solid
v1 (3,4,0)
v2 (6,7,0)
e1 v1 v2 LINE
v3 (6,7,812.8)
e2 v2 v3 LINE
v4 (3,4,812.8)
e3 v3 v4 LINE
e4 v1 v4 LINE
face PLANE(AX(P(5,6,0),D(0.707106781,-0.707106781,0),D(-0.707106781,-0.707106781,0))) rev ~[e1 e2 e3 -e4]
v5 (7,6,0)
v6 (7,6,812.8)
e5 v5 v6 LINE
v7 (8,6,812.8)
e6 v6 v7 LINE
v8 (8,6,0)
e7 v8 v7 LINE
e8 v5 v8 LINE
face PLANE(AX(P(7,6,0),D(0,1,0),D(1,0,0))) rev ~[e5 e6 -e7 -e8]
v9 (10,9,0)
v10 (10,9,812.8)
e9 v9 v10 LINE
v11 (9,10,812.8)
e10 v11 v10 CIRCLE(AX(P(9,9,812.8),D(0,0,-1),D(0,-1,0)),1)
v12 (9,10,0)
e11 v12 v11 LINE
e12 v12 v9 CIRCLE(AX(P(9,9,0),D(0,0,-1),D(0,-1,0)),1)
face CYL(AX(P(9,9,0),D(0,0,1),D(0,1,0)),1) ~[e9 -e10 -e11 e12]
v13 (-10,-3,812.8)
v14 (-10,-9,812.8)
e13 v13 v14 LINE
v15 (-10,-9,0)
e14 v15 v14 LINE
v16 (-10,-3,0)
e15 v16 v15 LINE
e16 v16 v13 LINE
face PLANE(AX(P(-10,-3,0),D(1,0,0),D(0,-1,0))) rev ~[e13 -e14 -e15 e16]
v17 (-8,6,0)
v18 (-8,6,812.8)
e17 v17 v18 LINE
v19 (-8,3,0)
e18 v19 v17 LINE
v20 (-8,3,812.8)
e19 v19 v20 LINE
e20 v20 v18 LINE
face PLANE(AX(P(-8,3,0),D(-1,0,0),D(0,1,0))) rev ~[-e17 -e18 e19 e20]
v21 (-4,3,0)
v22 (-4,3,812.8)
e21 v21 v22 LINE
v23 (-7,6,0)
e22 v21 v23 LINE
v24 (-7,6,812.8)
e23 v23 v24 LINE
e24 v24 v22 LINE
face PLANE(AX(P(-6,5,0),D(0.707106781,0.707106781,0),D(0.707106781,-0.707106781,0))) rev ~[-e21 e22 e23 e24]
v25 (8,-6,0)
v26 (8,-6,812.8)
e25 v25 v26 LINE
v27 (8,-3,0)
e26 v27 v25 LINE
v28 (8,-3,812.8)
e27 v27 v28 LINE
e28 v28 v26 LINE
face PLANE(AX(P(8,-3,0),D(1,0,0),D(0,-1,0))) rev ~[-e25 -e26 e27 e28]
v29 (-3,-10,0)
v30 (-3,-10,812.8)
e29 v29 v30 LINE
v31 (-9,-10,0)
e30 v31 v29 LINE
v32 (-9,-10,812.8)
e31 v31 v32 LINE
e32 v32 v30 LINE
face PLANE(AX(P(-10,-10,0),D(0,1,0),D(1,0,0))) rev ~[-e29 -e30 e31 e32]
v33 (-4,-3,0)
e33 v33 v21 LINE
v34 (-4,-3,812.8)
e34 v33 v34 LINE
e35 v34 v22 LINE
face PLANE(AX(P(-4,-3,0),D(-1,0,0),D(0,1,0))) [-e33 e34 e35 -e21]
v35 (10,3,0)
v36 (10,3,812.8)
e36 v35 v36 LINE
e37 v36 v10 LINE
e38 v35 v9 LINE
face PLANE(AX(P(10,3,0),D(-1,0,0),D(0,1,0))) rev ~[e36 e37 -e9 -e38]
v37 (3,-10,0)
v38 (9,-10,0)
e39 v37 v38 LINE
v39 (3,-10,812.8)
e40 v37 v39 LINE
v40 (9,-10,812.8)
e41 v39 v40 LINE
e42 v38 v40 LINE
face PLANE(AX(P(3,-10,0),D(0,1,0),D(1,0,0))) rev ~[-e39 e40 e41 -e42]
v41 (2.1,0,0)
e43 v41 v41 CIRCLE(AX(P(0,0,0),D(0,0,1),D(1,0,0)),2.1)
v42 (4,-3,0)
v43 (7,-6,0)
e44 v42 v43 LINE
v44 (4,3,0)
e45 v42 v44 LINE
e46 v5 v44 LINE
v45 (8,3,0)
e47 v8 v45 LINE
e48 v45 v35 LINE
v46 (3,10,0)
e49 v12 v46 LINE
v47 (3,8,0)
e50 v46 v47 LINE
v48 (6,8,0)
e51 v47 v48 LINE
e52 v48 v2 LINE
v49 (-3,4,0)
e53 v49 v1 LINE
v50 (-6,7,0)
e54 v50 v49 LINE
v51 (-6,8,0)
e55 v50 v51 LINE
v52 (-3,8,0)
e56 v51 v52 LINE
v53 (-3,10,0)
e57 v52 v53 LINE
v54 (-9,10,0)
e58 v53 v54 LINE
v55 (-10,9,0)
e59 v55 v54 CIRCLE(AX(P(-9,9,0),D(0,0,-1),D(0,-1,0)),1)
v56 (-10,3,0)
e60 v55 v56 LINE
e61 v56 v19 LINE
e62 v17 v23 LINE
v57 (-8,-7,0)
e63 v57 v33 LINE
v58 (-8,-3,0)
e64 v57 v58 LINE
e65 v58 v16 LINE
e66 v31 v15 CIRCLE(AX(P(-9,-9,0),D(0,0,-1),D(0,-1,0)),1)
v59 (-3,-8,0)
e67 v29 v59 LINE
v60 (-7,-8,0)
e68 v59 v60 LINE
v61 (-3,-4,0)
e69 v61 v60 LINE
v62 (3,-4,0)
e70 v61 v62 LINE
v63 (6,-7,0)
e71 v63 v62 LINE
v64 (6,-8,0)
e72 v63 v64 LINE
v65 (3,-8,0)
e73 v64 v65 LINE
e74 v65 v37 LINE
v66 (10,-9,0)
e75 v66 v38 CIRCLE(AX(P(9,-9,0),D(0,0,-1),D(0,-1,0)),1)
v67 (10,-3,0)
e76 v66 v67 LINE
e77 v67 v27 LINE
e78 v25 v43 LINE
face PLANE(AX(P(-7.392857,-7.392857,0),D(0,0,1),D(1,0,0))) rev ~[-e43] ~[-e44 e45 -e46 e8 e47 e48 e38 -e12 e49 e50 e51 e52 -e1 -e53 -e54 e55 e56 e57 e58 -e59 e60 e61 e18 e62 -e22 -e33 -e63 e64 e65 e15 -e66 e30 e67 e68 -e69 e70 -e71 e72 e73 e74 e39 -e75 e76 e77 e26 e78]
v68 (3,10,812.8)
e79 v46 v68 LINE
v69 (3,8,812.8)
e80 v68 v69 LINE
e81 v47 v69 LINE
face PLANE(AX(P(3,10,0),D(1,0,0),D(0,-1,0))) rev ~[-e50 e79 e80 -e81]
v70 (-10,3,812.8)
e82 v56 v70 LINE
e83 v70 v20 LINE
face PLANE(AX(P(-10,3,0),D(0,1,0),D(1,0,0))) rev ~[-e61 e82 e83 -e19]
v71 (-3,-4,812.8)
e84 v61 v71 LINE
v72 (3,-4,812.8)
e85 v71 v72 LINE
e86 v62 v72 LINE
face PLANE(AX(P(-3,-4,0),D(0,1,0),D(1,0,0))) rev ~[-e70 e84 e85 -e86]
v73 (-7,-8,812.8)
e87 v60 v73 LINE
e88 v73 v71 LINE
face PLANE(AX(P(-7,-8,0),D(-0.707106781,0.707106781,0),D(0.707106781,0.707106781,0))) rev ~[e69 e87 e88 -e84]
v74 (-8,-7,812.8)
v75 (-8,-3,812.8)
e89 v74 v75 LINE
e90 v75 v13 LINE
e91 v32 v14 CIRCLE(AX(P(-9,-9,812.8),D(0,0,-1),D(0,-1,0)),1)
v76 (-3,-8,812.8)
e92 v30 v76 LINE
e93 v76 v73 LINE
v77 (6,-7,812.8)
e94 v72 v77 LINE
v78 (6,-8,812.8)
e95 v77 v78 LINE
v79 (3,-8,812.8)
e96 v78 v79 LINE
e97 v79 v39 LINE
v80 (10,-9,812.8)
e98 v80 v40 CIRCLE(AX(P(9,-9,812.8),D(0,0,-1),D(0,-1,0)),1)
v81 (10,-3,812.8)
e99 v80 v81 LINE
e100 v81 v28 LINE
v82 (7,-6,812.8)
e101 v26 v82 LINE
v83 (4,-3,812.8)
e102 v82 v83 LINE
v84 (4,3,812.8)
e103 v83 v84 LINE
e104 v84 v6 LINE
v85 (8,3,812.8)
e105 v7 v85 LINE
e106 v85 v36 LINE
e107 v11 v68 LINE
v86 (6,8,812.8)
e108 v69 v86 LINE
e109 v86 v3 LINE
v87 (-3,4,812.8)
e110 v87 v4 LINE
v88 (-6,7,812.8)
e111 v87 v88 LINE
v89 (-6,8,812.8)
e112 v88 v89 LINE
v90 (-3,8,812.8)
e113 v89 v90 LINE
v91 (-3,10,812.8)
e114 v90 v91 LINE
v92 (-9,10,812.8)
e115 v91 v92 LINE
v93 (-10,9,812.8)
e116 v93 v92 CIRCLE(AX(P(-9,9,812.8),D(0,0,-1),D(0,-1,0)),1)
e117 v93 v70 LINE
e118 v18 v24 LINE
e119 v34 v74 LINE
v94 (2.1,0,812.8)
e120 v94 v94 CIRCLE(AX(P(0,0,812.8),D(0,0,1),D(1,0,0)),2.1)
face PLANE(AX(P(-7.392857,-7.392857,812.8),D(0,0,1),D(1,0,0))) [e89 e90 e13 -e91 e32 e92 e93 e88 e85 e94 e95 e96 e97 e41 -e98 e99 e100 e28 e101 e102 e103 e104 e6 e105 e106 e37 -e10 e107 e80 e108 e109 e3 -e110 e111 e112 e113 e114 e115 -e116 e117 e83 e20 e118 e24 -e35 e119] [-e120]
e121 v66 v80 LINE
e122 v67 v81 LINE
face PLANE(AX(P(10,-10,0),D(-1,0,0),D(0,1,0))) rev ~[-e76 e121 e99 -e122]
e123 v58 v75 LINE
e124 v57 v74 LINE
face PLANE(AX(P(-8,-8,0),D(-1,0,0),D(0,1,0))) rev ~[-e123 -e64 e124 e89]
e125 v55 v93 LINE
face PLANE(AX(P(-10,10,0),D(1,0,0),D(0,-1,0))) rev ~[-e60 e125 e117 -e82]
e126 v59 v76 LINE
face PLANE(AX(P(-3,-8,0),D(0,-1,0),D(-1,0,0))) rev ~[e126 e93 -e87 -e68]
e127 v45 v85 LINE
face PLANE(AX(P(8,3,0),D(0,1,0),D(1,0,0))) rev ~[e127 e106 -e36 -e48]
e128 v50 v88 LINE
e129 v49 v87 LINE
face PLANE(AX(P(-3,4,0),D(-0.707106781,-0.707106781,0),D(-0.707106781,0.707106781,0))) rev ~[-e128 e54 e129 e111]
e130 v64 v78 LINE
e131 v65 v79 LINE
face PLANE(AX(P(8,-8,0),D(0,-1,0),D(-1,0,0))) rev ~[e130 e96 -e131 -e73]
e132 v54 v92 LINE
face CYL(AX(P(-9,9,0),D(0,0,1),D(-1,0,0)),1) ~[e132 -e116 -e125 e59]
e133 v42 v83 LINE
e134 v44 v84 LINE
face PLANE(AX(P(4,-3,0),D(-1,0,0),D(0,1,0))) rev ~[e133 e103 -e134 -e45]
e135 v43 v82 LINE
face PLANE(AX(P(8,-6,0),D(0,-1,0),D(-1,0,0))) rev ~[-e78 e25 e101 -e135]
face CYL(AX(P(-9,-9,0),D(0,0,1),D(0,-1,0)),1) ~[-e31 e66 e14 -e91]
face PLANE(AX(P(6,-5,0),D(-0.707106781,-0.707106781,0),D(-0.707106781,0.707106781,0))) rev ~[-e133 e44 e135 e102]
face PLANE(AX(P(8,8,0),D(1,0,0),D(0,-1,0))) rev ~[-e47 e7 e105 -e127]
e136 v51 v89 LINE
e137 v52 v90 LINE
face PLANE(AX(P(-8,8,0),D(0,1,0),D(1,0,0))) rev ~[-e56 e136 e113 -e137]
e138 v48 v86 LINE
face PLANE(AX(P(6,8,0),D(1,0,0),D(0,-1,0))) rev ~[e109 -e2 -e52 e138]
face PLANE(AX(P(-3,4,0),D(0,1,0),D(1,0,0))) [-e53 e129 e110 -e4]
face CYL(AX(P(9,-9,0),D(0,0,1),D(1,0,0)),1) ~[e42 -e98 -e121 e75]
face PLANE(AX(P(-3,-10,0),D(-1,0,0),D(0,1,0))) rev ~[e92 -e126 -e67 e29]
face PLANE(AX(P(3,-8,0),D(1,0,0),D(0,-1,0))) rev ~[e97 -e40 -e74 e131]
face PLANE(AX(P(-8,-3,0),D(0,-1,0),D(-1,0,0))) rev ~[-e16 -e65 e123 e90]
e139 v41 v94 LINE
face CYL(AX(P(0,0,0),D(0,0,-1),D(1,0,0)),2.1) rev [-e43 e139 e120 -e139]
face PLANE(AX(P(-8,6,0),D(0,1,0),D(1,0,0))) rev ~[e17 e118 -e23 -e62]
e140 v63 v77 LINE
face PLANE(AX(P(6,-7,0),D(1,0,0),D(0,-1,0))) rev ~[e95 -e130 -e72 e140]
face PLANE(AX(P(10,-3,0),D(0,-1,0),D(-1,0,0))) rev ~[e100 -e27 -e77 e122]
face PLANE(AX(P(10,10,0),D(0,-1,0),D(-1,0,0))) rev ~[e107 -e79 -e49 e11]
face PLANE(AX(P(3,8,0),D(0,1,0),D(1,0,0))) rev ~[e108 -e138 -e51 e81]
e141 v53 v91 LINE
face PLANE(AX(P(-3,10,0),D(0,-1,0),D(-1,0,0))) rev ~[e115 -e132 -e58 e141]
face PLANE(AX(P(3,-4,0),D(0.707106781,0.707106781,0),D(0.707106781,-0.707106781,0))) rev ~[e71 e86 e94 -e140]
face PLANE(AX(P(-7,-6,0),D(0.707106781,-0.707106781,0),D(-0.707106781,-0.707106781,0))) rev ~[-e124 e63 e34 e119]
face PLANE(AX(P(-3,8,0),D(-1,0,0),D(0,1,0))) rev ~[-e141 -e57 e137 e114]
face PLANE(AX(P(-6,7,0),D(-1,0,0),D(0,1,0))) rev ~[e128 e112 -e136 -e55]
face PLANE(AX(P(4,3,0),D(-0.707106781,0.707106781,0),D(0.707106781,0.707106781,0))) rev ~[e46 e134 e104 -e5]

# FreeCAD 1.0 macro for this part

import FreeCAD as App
import Part
import Sketcher

V = App.Vector


def edges_at(feature, points):
    """Names of the edges that pass closest to the given points."""
    edges = feature.Shape.Edges
    near = lambda p: min(range(len(edges)), key=lambda i: edges[i].distToShape(Part.Vertex(*p))[0])
    return sorted({f"Edge{near(p) + 1}" for p in points})

doc = App.newDocument("Part")
body = doc.addObject("PartDesign::Body", "Body")

sketch1 = doc.addObject("Sketcher::SketchObject", "Sketch")
body.addObject(sketch1)
sketch1.AttachmentSupport = (doc.XY_Plane, [""])
sketch1.MapMode = "FlatFace"
sketch1.addGeometry([
    Part.LineSegment(V(-6, 7, 0), V(-6, 8, 0)),
    Part.LineSegment(V(-6, 8, 0), V(-3, 8, 0)),
    Part.LineSegment(V(-3, 8, 0), V(-3, 10, 0)),
    Part.LineSegment(V(-3, 10, 0), V(-10, 10, 0)),
    Part.LineSegment(V(-10, 10, 0), V(-10, 3, 0)),
    Part.LineSegment(V(-10, 3, 0), V(-8, 3, 0)),
    Part.LineSegment(V(-8, 3, 0), V(-8, 6, 0)),
    Part.LineSegment(V(-8, 6, 0), V(-7, 6, 0)),
    Part.LineSegment(V(-7, 6, 0), V(-4, 3, 0)),
    Part.LineSegment(V(-4, 3, 0), V(-4, -3, 0)),
    Part.LineSegment(V(-4, -3, 0), V(-8, -7, 0)),
    Part.LineSegment(V(-8, -7, 0), V(-8, -3, 0)),
    Part.LineSegment(V(-8, -3, 0), V(-10, -3, 0)),
    Part.LineSegment(V(-10, -3, 0), V(-10, -10, 0)),
    Part.LineSegment(V(-10, -10, 0), V(-3, -10, 0)),
    Part.LineSegment(V(-3, -10, 0), V(-3, -8, 0)),
    Part.LineSegment(V(-3, -8, 0), V(-7, -8, 0)),
    Part.LineSegment(V(-7, -8, 0), V(-3, -4, 0)),
    Part.LineSegment(V(-3, -4, 0), V(3, -4, 0)),
    Part.LineSegment(V(3, -4, 0), V(6, -7, 0)),
    Part.LineSegment(V(6, -7, 0), V(6, -8, 0)),
    Part.LineSegment(V(6, -8, 0), V(3, -8, 0)),
    Part.LineSegment(V(3, -8, 0), V(3, -10, 0)),
    Part.LineSegment(V(3, -10, 0), V(10, -10, 0)),
    Part.LineSegment(V(10, -10, 0), V(10, -3, 0)),
    Part.LineSegment(V(10, -3, 0), V(8, -3, 0)),
    Part.LineSegment(V(8, -3, 0), V(8, -6, 0)),
    Part.LineSegment(V(8, -6, 0), V(7, -6, 0)),
    Part.LineSegment(V(7, -6, 0), V(4, -3, 0)),
    Part.LineSegment(V(4, -3, 0), V(4, 3, 0)),
    Part.LineSegment(V(4, 3, 0), V(7, 6, 0)),
    Part.LineSegment(V(7, 6, 0), V(8, 6, 0)),
    Part.LineSegment(V(8, 6, 0), V(8, 3, 0)),
    Part.LineSegment(V(8, 3, 0), V(10, 3, 0)),
    Part.LineSegment(V(10, 3, 0), V(10, 10, 0)),
    Part.LineSegment(V(10, 10, 0), V(3, 10, 0)),
    Part.LineSegment(V(3, 10, 0), V(3, 8, 0)),
    Part.LineSegment(V(3, 8, 0), V(6, 8, 0)),
    Part.LineSegment(V(6, 8, 0), V(6, 7, 0)),
    Part.LineSegment(V(6, 7, 0), V(3, 4, 0)),
    Part.LineSegment(V(3, 4, 0), V(-3, 4, 0)),
    Part.LineSegment(V(-3, 4, 0), V(-6, 7, 0)),
    Part.Circle(V(0, 0, 0), V(0, 0, 1), 2.1),
], False)
sketch1.addConstraint([
    Sketcher.Constraint("Coincident", 0, 2, 1, 1),
    Sketcher.Constraint("Coincident", 1, 2, 2, 1),
    Sketcher.Constraint("Coincident", 2, 2, 3, 1),
    Sketcher.Constraint("Coincident", 3, 2, 4, 1),
    Sketcher.Constraint("Coincident", 4, 2, 5, 1),
    Sketcher.Constraint("Coincident", 5, 2, 6, 1),
    Sketcher.Constraint("Coincident", 6, 2, 7, 1),
    Sketcher.Constraint("Coincident", 7, 2, 8, 1),
    Sketcher.Constraint("Coincident", 8, 2, 9, 1),
    Sketcher.Constraint("Coincident", 9, 2, 10, 1),
    Sketcher.Constraint("Coincident", 10, 2, 11, 1),
    Sketcher.Constraint("Coincident", 11, 2, 12, 1),
    Sketcher.Constraint("Coincident", 12, 2, 13, 1),
    Sketcher.Constraint("Coincident", 13, 2, 14, 1),
    Sketcher.Constraint("Coincident", 14, 2, 15, 1),
    Sketcher.Constraint("Coincident", 15, 2, 16, 1),
    Sketcher.Constraint("Coincident", 16, 2, 17, 1),
    Sketcher.Constraint("Coincident", 17, 2, 18, 1),
    Sketcher.Constraint("Coincident", 18, 2, 19, 1),
    Sketcher.Constraint("Coincident", 19, 2, 20, 1),
    Sketcher.Constraint("Coincident", 20, 2, 21, 1),
    Sketcher.Constraint("Coincident", 21, 2, 22, 1),
    Sketcher.Constraint("Coincident", 22, 2, 23, 1),
    Sketcher.Constraint("Coincident", 23, 2, 24, 1),
    Sketcher.Constraint("Coincident", 24, 2, 25, 1),
    Sketcher.Constraint("Coincident", 25, 2, 26, 1),
    Sketcher.Constraint("Coincident", 26, 2, 27, 1),
    Sketcher.Constraint("Coincident", 27, 2, 28, 1),
    Sketcher.Constraint("Coincident", 28, 2, 29, 1),
    Sketcher.Constraint("Coincident", 29, 2, 30, 1),
    Sketcher.Constraint("Coincident", 30, 2, 31, 1),
    Sketcher.Constraint("Coincident", 31, 2, 32, 1),
    Sketcher.Constraint("Coincident", 32, 2, 33, 1),
    Sketcher.Constraint("Coincident", 33, 2, 34, 1),
    Sketcher.Constraint("Coincident", 34, 2, 35, 1),
    Sketcher.Constraint("Coincident", 35, 2, 36, 1),
    Sketcher.Constraint("Coincident", 36, 2, 37, 1),
    Sketcher.Constraint("Coincident", 37, 2, 38, 1),
    Sketcher.Constraint("Coincident", 38, 2, 39, 1),
    Sketcher.Constraint("Coincident", 39, 2, 40, 1),
    Sketcher.Constraint("Coincident", 40, 2, 41, 1),
    Sketcher.Constraint("Coincident", 41, 2, 0, 1),
    Sketcher.Constraint("Vertical", 0),
    Sketcher.Constraint("Horizontal", 1),
    Sketcher.Constraint("Vertical", 2),
    Sketcher.Constraint("Horizontal", 3),
    Sketcher.Constraint("Vertical", 4),
    Sketcher.Constraint("Horizontal", 5),
    Sketcher.Constraint("Vertical", 6),
    Sketcher.Constraint("Horizontal", 7),
    Sketcher.Constraint("Vertical", 9),
    Sketcher.Constraint("Vertical", 11),
    Sketcher.Constraint("Horizontal", 12),
    Sketcher.Constraint("Vertical", 13),
    Sketcher.Constraint("Horizontal", 14),
    Sketcher.Constraint("Vertical", 15),
    Sketcher.Constraint("Horizontal", 16),
    Sketcher.Constraint("Horizontal", 18),
    Sketcher.Constraint("Vertical", 20),
    Sketcher.Constraint("Horizontal", 21),
    Sketcher.Constraint("Vertical", 22),
    Sketcher.Constraint("Horizontal", 23),
    Sketcher.Constraint("Vertical", 24),
    Sketcher.Constraint("Horizontal", 25),
    Sketcher.Constraint("Vertical", 26),
    Sketcher.Constraint("Horizontal", 27),
    Sketcher.Constraint("Vertical", 29),
    Sketcher.Constraint("Horizontal", 31),
    Sketcher.Constraint("Vertical", 32),
    Sketcher.Constraint("Horizontal", 33),
    Sketcher.Constraint("Vertical", 34),
    Sketcher.Constraint("Horizontal", 35),
    Sketcher.Constraint("Vertical", 36),
    Sketcher.Constraint("Horizontal", 37),
    Sketcher.Constraint("Vertical", 38),
    Sketcher.Constraint("Horizontal", 40),
    Sketcher.Constraint("Coincident", 42, 3, -1, 1),
    Sketcher.Constraint("Symmetric", 0, 2, 20, 2, -1, 1),
    Sketcher.Constraint("Symmetric", 2, 2, 22, 2, -1, 1),
    Sketcher.Constraint("Symmetric", 4, 2, 24, 2, -1, 1),
    Sketcher.Constraint("Symmetric", 6, 2, 26, 2, -1, 1),
    Sketcher.Constraint("Symmetric", 8, 2, 28, 2, -1, 1),
    Sketcher.Constraint("Symmetric", 11, 2, 32, 2, -1, 1),
    Sketcher.Constraint("Symmetric", 13, 2, 34, 2, -1, 1),
    Sketcher.Constraint("Symmetric", 15, 2, 36, 2, -1, 1),
    Sketcher.Constraint("Symmetric", 17, 2, 39, 2, -1, 1),
    Sketcher.Constraint("Symmetric", 15, 2, 21, 2, -2),
    Sketcher.Constraint("Symmetric", 13, 2, 23, 2, -2),
    Sketcher.Constraint("Symmetric", 11, 2, 25, 2, -2),
    Sketcher.Constraint("Symmetric", 7, 2, 30, 2, -2),
    Sketcher.Constraint("Symmetric", 38, 2, 41, 2, -2),
    Sketcher.Constraint("Perpendicular", 8, 10),
    Sketcher.Constraint("Parallel", 10, 17),
    Sketcher.Constraint("Perpendicular", 17, 19),
    Sketcher.Constraint("Parallel", 19, 28),
    Sketcher.Constraint("Perpendicular", 28, 30),
    Sketcher.Constraint("Parallel", 30, 39),
    Sketcher.Constraint("Perpendicular", 39, 41),
    Sketcher.Constraint("Horizontal", 5, 2, 8, 2),
    Sketcher.Constraint("Horizontal", 9, 2, 11, 2),
    Sketcher.Constraint("Horizontal", 10, 2, 19, 2),
    Sketcher.Constraint("Horizontal", 8, 2, 29, 2),
    Sketcher.Constraint("Vertical", 7, 2, 16, 2),
    Sketcher.Constraint("Vertical", 15, 2, 17, 2),
    Sketcher.Constraint("Vertical", 18, 2, 21, 2),
    Sketcher.Constraint("Equal", 31, 0),
    Sketcher.Constraint("Equal", 33, 2),
    Sketcher.Constraint("Equal", 35, 4),
    Sketcher.Constraint("Equal", 40, 9),
    Sketcher.Constraint("Diameter", 42, 4.2),
    Sketcher.Constraint("DistanceX", 1, 1, 1, 2, 3.0),
    Sketcher.Constraint("DistanceX", 3, 2, 3, 1, 7.0),
    Sketcher.Constraint("DistanceX", 5, 1, 5, 2, 2.0),
    Sketcher.Constraint("DistanceX", 18, 1, 18, 2, 6.0),
])
pad1 = doc.addObject("PartDesign::Pad", "Pad")
body.addObject(pad1)
pad1.Profile = sketch1
pad1.Length = 812.8
doc.recompute()

fillet = doc.addObject("PartDesign::Fillet", "Fillet")
body.addObject(fillet)
fillet.Base = (pad1, edges_at(pad1, [
    (-10, -10, 406.4),
    (-10, 10, 406.4),
    (10, 10, 406.4),
    (10, -10, 406.4),
]))
fillet.Radius = 1

doc.recompute()
